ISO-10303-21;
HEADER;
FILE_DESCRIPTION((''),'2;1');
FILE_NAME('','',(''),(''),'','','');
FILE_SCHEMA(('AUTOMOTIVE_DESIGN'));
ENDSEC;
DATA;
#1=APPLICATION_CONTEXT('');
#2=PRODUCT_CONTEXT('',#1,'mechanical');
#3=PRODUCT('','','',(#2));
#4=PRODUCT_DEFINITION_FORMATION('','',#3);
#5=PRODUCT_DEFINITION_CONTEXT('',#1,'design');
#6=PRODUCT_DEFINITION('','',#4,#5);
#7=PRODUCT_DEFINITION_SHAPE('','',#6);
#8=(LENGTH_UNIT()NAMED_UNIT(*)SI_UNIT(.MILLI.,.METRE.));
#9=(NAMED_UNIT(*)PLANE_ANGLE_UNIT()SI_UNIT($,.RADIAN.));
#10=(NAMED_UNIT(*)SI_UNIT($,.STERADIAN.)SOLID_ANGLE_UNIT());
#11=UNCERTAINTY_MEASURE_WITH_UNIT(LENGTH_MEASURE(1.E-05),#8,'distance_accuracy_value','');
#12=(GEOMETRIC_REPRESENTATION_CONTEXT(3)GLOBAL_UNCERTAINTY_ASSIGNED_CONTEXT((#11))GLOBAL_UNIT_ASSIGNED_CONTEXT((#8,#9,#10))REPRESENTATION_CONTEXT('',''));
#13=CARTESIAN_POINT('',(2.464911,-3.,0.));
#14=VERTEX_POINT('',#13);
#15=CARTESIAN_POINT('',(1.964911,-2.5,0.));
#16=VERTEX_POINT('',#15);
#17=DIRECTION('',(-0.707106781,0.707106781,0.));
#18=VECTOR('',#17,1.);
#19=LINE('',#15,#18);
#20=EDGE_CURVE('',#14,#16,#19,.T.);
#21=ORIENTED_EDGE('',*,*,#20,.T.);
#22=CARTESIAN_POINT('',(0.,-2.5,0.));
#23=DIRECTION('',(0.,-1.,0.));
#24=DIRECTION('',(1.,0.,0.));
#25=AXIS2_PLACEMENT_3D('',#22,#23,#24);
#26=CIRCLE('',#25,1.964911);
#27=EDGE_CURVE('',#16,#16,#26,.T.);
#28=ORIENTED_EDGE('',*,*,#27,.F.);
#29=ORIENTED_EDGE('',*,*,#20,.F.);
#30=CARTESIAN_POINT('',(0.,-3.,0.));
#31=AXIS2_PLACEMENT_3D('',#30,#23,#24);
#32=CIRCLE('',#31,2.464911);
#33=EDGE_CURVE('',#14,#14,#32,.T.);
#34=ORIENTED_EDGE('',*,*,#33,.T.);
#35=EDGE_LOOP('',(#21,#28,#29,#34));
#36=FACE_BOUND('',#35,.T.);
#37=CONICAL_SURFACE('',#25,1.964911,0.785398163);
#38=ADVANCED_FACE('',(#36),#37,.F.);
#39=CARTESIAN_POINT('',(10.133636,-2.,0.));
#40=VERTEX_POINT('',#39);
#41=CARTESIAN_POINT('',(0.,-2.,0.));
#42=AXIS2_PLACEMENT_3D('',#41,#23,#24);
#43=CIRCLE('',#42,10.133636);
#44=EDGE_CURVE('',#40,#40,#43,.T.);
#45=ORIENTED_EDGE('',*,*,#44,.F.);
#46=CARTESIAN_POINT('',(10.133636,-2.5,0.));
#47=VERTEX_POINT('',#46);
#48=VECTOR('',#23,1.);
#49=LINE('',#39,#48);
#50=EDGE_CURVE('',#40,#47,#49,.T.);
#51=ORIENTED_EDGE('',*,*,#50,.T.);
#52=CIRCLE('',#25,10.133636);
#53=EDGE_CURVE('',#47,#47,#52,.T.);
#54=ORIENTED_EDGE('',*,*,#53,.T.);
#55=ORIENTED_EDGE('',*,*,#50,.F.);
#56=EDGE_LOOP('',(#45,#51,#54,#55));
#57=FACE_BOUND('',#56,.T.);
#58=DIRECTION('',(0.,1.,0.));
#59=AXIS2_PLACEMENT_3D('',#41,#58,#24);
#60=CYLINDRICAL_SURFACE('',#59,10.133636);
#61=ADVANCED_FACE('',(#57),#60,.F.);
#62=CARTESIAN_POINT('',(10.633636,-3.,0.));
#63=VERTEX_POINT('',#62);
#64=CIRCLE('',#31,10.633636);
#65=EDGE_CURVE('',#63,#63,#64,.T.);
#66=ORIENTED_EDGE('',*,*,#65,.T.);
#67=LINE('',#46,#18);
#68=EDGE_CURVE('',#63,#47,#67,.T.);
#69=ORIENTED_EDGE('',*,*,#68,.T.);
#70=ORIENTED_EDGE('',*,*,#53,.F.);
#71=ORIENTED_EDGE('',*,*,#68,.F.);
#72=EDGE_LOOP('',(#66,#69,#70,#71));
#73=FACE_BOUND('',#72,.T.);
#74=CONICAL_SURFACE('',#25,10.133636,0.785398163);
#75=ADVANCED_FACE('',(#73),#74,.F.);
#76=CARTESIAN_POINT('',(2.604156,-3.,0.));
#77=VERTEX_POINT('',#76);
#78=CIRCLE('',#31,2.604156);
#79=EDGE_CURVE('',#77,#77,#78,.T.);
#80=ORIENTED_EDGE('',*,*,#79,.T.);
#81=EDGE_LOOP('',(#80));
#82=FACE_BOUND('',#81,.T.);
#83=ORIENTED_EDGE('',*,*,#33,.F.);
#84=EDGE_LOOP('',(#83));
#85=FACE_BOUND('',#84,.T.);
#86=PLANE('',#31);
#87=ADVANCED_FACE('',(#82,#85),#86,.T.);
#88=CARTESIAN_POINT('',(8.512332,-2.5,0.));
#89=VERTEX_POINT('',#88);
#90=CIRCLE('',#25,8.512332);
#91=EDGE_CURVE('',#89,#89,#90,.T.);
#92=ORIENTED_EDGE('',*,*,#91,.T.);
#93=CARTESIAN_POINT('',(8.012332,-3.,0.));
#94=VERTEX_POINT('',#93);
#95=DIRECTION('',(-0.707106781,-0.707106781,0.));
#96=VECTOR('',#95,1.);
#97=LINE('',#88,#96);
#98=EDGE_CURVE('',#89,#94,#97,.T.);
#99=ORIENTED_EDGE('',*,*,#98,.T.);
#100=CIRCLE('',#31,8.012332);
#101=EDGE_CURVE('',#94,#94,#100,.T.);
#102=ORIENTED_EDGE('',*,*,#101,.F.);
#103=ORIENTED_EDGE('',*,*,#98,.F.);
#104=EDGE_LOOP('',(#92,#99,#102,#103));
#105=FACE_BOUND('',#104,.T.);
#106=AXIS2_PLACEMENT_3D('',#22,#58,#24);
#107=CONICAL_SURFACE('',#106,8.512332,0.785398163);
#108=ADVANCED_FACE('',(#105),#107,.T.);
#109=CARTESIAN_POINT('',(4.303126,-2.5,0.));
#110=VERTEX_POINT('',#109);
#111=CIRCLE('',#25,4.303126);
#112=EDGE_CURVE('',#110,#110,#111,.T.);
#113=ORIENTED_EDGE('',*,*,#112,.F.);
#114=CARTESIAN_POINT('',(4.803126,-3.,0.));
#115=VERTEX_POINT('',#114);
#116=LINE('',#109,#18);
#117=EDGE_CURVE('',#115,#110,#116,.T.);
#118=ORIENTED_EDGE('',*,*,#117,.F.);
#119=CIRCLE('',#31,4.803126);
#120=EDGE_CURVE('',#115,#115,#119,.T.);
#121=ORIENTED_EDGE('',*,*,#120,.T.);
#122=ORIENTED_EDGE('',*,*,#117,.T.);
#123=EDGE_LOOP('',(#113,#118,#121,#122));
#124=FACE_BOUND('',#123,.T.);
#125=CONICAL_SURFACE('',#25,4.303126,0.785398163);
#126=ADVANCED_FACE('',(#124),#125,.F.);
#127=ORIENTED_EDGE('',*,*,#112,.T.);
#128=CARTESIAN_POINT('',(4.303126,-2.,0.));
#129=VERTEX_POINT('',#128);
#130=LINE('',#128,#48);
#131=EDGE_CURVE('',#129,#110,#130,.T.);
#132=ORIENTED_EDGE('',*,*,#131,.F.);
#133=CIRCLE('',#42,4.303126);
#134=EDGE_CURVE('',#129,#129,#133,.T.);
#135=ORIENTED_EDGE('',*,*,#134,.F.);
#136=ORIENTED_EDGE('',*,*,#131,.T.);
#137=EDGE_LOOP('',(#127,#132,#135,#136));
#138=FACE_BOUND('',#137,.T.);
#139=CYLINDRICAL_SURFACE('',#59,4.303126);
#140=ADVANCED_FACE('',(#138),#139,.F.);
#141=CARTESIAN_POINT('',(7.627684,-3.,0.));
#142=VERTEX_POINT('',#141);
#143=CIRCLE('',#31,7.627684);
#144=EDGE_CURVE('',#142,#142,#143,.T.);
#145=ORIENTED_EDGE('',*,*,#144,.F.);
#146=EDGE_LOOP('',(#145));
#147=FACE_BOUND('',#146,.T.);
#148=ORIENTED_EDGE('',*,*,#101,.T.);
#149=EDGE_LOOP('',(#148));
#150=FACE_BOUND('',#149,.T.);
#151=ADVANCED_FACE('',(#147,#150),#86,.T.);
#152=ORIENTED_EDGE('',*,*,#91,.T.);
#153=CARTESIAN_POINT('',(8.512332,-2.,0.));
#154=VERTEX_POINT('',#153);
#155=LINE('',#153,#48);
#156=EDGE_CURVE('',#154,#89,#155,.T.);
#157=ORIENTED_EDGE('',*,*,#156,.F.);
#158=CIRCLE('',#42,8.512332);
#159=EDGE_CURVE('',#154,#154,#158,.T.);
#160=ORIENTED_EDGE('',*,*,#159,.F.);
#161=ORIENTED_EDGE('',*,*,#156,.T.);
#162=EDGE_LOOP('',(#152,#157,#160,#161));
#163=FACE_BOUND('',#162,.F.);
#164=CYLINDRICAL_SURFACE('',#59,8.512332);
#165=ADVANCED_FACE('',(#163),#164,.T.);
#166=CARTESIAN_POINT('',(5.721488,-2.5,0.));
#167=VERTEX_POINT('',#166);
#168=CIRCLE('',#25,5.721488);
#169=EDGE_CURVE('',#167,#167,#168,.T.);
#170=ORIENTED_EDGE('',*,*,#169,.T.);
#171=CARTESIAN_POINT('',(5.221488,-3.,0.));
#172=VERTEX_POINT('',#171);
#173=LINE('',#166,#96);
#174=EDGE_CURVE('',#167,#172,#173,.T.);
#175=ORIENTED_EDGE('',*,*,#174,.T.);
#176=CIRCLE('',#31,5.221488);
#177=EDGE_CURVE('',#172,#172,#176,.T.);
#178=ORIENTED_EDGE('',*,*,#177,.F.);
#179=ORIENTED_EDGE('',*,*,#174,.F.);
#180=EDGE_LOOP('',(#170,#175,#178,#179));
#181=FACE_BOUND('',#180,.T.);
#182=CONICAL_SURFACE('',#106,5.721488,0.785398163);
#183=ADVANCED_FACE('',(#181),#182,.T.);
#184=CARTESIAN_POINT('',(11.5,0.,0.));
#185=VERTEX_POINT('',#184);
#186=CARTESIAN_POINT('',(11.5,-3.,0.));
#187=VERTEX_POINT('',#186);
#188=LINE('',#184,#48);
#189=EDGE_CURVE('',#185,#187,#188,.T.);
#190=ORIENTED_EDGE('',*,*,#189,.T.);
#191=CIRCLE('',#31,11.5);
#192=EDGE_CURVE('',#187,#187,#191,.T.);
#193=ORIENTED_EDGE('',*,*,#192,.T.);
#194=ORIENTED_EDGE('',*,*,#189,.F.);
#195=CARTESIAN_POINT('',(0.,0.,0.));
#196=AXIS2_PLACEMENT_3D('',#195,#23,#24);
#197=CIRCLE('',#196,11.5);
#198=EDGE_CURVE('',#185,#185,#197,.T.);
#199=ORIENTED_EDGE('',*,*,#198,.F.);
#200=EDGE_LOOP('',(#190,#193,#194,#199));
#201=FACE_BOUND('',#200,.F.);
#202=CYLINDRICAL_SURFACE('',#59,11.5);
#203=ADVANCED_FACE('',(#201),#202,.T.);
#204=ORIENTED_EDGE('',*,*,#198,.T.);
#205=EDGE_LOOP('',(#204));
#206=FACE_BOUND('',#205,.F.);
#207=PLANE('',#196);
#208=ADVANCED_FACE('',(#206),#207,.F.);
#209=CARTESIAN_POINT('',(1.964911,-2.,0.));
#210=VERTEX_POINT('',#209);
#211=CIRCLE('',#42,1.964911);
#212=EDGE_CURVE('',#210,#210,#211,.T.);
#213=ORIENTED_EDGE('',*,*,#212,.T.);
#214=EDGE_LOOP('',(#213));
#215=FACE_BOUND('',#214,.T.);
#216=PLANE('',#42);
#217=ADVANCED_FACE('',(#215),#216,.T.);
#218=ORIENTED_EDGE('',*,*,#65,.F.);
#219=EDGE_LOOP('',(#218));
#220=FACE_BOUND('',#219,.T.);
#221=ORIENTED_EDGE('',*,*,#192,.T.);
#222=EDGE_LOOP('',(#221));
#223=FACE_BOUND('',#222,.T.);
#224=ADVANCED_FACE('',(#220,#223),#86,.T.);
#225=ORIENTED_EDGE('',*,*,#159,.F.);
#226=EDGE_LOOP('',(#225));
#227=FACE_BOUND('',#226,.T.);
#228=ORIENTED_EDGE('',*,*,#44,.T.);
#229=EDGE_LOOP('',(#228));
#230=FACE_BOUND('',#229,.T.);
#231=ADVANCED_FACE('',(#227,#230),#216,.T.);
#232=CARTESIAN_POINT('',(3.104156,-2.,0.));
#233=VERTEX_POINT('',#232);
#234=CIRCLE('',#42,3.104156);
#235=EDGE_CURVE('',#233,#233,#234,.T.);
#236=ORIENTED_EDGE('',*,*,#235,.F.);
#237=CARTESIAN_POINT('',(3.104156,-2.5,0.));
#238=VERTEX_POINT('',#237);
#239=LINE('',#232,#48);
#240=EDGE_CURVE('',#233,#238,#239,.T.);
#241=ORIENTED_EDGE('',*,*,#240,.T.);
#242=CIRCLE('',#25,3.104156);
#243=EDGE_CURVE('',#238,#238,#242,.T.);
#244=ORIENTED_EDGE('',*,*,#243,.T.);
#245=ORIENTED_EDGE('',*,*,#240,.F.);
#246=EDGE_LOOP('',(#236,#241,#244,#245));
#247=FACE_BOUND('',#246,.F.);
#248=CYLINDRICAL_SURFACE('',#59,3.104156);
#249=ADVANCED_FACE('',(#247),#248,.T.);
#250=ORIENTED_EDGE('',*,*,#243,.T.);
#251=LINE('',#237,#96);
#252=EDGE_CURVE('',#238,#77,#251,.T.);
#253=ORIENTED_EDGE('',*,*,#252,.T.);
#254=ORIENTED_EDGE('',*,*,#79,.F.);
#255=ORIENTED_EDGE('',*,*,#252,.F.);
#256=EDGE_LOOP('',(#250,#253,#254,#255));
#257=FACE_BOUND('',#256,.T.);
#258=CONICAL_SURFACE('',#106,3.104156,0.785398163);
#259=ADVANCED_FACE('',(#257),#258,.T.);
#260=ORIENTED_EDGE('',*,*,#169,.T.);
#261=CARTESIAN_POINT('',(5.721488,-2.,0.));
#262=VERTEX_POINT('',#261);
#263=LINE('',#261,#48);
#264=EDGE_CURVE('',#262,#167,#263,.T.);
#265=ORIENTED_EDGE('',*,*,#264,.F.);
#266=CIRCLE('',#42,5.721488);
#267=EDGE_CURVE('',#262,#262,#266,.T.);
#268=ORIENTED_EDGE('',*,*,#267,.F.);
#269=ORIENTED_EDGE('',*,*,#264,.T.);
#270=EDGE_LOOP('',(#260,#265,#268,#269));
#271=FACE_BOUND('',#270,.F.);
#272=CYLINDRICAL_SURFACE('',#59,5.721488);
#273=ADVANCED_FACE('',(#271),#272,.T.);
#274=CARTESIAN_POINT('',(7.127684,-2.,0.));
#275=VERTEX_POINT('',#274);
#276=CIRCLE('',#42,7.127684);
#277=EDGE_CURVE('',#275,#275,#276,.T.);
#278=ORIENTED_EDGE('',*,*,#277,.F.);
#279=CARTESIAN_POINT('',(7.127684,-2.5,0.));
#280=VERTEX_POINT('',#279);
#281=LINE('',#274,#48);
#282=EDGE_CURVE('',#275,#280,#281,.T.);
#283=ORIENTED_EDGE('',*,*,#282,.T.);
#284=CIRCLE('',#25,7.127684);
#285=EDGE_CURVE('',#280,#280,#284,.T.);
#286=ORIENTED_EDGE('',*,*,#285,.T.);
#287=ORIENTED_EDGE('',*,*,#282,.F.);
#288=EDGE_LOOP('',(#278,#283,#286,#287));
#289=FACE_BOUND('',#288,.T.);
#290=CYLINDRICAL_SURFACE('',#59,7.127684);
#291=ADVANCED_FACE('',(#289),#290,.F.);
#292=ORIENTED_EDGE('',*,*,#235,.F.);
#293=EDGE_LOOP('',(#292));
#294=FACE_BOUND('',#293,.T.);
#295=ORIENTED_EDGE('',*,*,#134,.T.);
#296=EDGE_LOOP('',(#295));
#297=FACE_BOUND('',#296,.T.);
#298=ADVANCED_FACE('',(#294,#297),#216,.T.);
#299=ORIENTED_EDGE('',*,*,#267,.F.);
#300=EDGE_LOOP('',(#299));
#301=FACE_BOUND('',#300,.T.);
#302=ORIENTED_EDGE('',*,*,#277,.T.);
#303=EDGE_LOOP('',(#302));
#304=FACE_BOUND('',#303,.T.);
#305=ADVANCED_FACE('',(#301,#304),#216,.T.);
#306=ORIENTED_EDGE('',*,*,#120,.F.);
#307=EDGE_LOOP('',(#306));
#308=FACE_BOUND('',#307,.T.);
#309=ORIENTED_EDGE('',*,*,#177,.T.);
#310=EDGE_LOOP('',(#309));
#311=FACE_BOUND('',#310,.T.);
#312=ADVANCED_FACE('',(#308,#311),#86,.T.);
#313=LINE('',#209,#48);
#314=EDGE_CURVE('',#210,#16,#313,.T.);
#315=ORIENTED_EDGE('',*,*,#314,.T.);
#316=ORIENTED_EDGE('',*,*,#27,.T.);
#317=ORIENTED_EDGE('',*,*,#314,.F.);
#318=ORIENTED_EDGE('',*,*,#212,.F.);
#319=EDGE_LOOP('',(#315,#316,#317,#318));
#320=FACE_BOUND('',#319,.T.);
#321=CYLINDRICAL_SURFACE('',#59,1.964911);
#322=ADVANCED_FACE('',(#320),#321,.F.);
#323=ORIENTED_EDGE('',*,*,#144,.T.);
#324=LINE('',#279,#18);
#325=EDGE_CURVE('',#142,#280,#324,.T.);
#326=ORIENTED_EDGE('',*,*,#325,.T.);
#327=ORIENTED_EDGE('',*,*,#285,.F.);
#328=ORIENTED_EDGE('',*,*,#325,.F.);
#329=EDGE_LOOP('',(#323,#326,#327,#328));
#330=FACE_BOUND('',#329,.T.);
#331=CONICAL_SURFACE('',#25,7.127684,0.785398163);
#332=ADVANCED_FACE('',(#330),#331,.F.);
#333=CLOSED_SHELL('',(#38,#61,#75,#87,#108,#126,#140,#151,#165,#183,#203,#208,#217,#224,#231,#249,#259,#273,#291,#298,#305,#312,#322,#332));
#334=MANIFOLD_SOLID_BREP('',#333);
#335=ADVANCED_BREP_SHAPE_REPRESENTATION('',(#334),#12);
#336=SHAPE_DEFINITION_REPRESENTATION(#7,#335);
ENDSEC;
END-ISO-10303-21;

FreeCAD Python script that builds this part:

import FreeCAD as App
import Part
import Sketcher

V = App.Vector


def edges_at(feature, points):
    """Names of the edges that pass closest to the given points."""
    edges = feature.Shape.Edges
    near = lambda p: min(range(len(edges)), key=lambda i: edges[i].distToShape(Part.Vertex(*p))[0])
    return sorted({f"Edge{near(p) + 1}" for p in points})

doc = App.newDocument("Part")
body = doc.addObject("PartDesign::Body", "Body")

# Sketch on XZ plane
sketch1 = doc.addObject("Sketcher::SketchObject", "Sketch")
body.addObject(sketch1)
sketch1.AttachmentSupport = (doc.XZ_Plane, [""])
sketch1.MapMode = "FlatFace"
sketch1.addGeometry(Part.Circle(V(0, 0, 0), V(0, 0, 1), 12), False)
sketch1.addConstraint([
    Sketcher.Constraint("Coincident", 0, 3, -1, 1),
    Sketcher.Constraint("Diameter", 0, 23.0),
])
pad1 = doc.addObject("PartDesign::Pad", "Pad")
body.addObject(pad1)
pad1.Profile = sketch1
pad1.Length = 2

# Sketch on XZ plane
sketch2 = doc.addObject("Sketcher::SketchObject", "Sketch001")
body.addObject(sketch2)
sketch2.AttachmentSupport = (doc.XZ_Plane, [""])
sketch2.MapMode = "FlatFace"
sketch2.AttachmentOffset = App.Placement(V(0, 0, 2), App.Rotation())
sketch2.addGeometry([
    Part.Circle(V(0, 0, 0), V(0, 0, 1), 11.5),  # 0
    Part.Circle(V(0, 0, 0), V(0, 0, 1), 10.1),  # 1
    Part.Circle(V(0, 0, 0), V(0, 0, 1), 8.5),  # 2
    Part.Circle(V(0, 0, 0), V(0, 0, 1), 7.1),  # 3
    Part.Circle(V(0, 0, 0), V(0, 0, 1), 5.7),  # 4
    Part.Circle(V(0, 0, 0), V(0, 0, 1), 4.3),  # 5
    Part.Circle(V(0, 0, 0), V(0, 0, 1), 3.1),  # 6
    Part.Circle(V(0, 0, 0), V(0, 0, 1), 2),  # 7
], False)
sketch2.addConstraint([
    Sketcher.Constraint("Coincident", 0, 3, -1, 1),
    Sketcher.Constraint("Coincident", 1, 3, -1, 1),
    Sketcher.Constraint("Coincident", 2, 3, -1, 1),
    Sketcher.Constraint("Coincident", 3, 3, -1, 1),
    Sketcher.Constraint("Coincident", 4, 3, -1, 1),
    Sketcher.Constraint("Coincident", 5, 3, -1, 1),
    Sketcher.Constraint("Coincident", 6, 3, -1, 1),
    Sketcher.Constraint("Coincident", 7, 3, -1, 1),
    Sketcher.Constraint("Diameter", 0, 23.0),
    Sketcher.Constraint("Diameter", 1, 20.267272),
    Sketcher.Constraint("Diameter", 3, 14.255368),
    Sketcher.Constraint("Diameter", 2, 17.024664),
    Sketcher.Constraint("Diameter", 4, 11.442976),
    Sketcher.Constraint("Diameter", 5, 8.606252),
    Sketcher.Constraint("Diameter", 6, 6.208312),
    Sketcher.Constraint("Diameter", 7, 3.929822),
])
pad2 = doc.addObject("PartDesign::Pad", "Pad001")
body.addObject(pad2)
pad2.Profile = sketch2
pad2.Length = 1
doc.recompute()

chamfer = doc.addObject("PartDesign::Chamfer", "Chamfer")
body.addObject(chamfer)
chamfer.Base = (pad2, edges_at(pad2, [
    (-1.965, -3, 0),
    (-4.303, -3, 0),
    (-7.128, -3, 0),
    (-10.134, -3, 0),
]))
chamfer.Size = 0.5
doc.recompute()

chamfer2 = doc.addObject("PartDesign::Chamfer", "Chamfer001")
body.addObject(chamfer2)
chamfer2.Base = (chamfer, edges_at(chamfer, [(-3.104, -3, 0), (-5.721, -3, 0), (-8.512, -3, 0)]))
chamfer2.Size = 0.5

doc.recompute()
